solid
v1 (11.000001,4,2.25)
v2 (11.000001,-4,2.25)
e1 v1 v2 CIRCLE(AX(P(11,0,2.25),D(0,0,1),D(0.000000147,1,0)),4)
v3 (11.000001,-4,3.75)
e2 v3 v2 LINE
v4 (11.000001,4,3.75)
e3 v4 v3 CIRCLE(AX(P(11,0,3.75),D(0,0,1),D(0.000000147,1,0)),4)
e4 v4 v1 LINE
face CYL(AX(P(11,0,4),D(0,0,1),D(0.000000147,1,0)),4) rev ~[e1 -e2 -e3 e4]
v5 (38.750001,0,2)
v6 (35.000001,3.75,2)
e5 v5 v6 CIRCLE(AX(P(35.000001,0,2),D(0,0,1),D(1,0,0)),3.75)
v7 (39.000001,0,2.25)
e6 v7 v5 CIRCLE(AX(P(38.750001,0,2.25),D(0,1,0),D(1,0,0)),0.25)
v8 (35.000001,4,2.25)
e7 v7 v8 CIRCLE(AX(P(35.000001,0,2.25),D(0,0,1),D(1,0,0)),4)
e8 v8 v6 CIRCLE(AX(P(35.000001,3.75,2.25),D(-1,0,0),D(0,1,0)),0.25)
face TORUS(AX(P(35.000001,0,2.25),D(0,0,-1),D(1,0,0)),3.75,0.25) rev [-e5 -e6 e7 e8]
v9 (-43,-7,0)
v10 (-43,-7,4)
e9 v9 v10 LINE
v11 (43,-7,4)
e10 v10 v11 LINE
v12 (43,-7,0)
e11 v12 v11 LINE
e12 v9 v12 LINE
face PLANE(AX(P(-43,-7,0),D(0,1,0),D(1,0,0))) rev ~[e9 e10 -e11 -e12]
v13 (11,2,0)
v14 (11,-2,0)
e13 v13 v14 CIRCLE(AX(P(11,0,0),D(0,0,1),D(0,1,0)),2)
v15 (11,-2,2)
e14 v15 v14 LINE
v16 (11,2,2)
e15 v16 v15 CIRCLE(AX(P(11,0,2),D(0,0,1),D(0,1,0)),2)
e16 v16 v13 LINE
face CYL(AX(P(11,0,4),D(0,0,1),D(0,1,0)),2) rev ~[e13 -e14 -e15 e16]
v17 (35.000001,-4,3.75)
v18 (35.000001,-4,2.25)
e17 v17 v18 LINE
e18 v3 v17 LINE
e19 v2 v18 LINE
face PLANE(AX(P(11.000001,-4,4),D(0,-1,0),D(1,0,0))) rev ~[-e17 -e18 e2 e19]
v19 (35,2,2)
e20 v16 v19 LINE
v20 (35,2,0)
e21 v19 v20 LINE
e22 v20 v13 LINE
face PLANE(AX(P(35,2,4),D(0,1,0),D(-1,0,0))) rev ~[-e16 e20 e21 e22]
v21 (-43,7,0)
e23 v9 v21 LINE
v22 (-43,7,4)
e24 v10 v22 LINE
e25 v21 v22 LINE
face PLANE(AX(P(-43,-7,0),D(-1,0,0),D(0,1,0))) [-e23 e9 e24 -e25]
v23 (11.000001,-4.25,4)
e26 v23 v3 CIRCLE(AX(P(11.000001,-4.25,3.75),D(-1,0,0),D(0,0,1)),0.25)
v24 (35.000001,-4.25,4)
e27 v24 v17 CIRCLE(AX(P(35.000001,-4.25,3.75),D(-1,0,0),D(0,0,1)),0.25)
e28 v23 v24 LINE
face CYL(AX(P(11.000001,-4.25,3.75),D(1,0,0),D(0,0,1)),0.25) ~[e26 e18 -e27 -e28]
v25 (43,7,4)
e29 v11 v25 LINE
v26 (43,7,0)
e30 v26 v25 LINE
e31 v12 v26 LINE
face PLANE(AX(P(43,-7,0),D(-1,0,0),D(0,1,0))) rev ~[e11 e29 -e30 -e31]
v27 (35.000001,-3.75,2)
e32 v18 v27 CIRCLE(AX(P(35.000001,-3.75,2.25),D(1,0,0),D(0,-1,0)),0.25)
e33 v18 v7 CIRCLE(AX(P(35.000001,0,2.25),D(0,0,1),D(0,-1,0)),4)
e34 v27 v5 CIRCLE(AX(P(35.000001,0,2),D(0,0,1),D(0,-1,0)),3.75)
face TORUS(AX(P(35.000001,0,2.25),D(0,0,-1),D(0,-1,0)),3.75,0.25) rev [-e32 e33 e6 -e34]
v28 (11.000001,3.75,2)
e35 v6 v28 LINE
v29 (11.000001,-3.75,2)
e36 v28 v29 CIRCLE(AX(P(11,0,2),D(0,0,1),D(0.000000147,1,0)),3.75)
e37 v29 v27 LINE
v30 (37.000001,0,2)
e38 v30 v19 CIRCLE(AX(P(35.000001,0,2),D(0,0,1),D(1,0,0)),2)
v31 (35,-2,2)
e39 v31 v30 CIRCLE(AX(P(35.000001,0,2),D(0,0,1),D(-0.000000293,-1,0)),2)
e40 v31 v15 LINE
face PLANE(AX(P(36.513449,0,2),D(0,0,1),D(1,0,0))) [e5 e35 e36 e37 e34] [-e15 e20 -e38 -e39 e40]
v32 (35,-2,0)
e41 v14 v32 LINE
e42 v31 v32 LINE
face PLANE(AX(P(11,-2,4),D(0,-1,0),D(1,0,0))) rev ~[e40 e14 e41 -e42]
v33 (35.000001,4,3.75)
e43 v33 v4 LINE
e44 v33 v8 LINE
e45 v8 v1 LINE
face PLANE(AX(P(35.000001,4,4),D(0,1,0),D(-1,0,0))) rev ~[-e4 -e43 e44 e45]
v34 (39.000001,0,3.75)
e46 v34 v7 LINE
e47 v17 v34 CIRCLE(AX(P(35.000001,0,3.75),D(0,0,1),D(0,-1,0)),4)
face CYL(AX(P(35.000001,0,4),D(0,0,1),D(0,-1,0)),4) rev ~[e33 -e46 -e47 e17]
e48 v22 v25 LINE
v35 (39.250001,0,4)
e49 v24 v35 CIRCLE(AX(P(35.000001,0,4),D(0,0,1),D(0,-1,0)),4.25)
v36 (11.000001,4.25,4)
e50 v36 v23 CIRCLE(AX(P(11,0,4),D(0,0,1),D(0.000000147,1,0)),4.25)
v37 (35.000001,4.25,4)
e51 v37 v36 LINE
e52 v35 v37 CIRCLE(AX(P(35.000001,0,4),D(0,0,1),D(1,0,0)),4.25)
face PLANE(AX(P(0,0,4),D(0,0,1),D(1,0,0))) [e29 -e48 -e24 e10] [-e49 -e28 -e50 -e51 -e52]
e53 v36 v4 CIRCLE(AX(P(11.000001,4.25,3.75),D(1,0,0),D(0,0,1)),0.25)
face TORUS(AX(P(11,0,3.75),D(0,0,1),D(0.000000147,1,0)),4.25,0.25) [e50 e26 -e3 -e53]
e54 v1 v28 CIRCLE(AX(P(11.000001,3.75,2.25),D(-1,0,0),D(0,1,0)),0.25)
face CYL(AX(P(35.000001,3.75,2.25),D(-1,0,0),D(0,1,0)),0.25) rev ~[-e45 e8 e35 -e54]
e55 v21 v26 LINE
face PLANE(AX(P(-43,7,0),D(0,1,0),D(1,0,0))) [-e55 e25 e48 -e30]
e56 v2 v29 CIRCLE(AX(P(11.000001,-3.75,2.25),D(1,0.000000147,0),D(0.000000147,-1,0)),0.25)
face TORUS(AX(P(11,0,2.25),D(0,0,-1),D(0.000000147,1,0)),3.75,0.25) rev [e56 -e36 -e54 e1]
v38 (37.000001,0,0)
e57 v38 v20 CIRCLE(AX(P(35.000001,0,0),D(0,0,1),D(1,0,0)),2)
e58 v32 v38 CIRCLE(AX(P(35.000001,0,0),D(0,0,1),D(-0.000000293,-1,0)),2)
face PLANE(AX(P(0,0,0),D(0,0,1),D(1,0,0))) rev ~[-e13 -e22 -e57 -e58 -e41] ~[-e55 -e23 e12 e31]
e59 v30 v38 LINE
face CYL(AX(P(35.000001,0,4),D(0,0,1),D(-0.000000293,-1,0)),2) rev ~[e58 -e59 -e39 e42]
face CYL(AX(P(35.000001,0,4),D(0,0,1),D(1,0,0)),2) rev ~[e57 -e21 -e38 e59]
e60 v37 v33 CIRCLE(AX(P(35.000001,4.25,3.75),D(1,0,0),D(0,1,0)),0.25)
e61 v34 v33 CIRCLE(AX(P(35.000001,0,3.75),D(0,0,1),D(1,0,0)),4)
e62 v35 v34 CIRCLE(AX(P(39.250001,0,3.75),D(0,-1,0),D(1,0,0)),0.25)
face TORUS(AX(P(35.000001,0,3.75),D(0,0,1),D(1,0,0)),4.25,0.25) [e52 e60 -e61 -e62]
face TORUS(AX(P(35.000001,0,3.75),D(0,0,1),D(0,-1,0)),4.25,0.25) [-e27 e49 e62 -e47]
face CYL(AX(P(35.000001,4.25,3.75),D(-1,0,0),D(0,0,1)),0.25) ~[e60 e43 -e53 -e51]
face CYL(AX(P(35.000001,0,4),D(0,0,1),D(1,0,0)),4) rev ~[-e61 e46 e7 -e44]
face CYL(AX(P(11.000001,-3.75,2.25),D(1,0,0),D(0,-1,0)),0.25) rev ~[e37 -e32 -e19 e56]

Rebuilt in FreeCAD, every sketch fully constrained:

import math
import FreeCAD as App
import Part
import Sketcher
from FreeCAD import Vector
Q = App.Units.Quantity


def edges_at(feature, points):
    """Names of the edges that pass closest to the given points."""
    edges = feature.Shape.Edges
    near = lambda p: min(range(len(edges)), key=lambda i: edges[i].distToShape(Part.Vertex(*p))[0])
    return sorted({f"Edge{near(p) + 1}" for p in points})

doc = App.newDocument("Part")
body = doc.addObject("PartDesign::Body", "Body")

# Sketch on XY plane
sketch1 = body.newObject("Sketcher::SketchObject", "Sketch")
sketch1.AttachmentSupport = (doc.getObject("XY_Plane"), [""])
sketch1.MapMode = "FlatFace"
sketch1.addGeometry([
    Part.LineSegment(Vector(-43, 7, 0), Vector(-43, -7, 0)),
    Part.LineSegment(Vector(-43, -7, 0), Vector(43, -7, 0)),
    Part.LineSegment(Vector(43, -7, 0), Vector(43, 7, 0)),
    Part.LineSegment(Vector(43, 7, 0), Vector(-43, 7, 0)),
], False)
sketch1.addConstraint([
    Sketcher.Constraint("Coincident", 0, 2, 1, 1),
    Sketcher.Constraint("Coincident", 1, 2, 2, 1),
    Sketcher.Constraint("Coincident", 2, 2, 3, 1),
    Sketcher.Constraint("Coincident", 3, 2, 0, 1),
    Sketcher.Constraint("Vertical", 0),
    Sketcher.Constraint("Horizontal", 1),
    Sketcher.Constraint("Vertical", 2),
    Sketcher.Constraint("Horizontal", 3),
    Sketcher.Constraint("Symmetric", 0, 2, 2, 2, -1, 1),
    Sketcher.Constraint("DistanceX", 1, 1, 1, 2, Q("86 mm")),
    Sketcher.Constraint("DistanceY", 0, 2, 0, 1, Q("14 mm")),
])
pad1 = body.newObject("PartDesign::Pad", "Pad")
pad1.Profile = sketch1
pad1.Length = 4

# Sketch on XY plane
sketch2 = body.newObject("Sketcher::SketchObject", "Sketch001")
sketch2.AttachmentSupport = (doc.getObject("XY_Plane"), [""])
sketch2.MapMode = "FlatFace"
sketch2.AttachmentOffset = App.Placement(Vector(0, 0, 4), App.Rotation())
sketch2.addGeometry([
    Part.ArcOfCircle(Part.Circle(Vector(35, 0, 0), Vector(0, 0, 1), 2), math.radians(-90), math.radians(0)),  # 0
    Part.ArcOfCircle(Part.Circle(Vector(35, 0, 0), Vector(0, 0, 1), 2), math.radians(0), math.radians(90)),  # 1
    Part.LineSegment(Vector(35, 2, 0), Vector(11, 2, 0)),  # 2
    Part.ArcOfCircle(Part.Circle(Vector(11, 0, 0), Vector(0, 0, 1), 2), math.radians(90), math.radians(270)),  # 3
    Part.LineSegment(Vector(11, -2, 0), Vector(35, -2, 0)),  # 4
], False)
sketch2.addConstraint([
    Sketcher.Constraint("Tangent", 0, 2, 1, 1),
    Sketcher.Constraint("Tangent", 1, 2, 2, 1),
    Sketcher.Constraint("Tangent", 2, 2, 3, 1),
    Sketcher.Constraint("Tangent", 3, 2, 4, 1),
    Sketcher.Constraint("Tangent", 4, 2, 0, 1),
    Sketcher.Constraint("Horizontal", 2),
    Sketcher.Constraint("Horizontal", 4),
    Sketcher.Constraint("Equal", 0, 1),
    Sketcher.Constraint("PointOnObject", 0, 3, -1),
    Sketcher.Constraint("PointOnObject", 0, 2, -1),
    Sketcher.Constraint("Radius", 0, Q("2 mm")),
    Sketcher.Constraint("DistanceX", 2, 2, 2, 1, Q("24 mm")),
    Sketcher.Constraint("DistanceX", -1, 1, 0, 3, Q("35.000001 mm")),
])
pocket1 = body.newObject("PartDesign::Pocket", "Pocket")
pocket1.Profile = sketch2
pocket1.Length = 4

# Sketch on XY plane
sketch3 = body.newObject("Sketcher::SketchObject", "Sketch002")
sketch3.AttachmentSupport = (doc.getObject("XY_Plane"), [""])
sketch3.MapMode = "FlatFace"
sketch3.AttachmentOffset = App.Placement(Vector(0, 0, 4), App.Rotation())
sketch3.addGeometry([
    Part.ArcOfCircle(Part.Circle(Vector(35, 0, 0), Vector(0, 0, 1), 4), math.radians(-90), math.radians(0)),  # 0
    Part.ArcOfCircle(Part.Circle(Vector(35, 0, 0), Vector(0, 0, 1), 4), math.radians(0), math.radians(90)),  # 1
    Part.LineSegment(Vector(35, 4, 0), Vector(11, 4, 0)),  # 2
    Part.ArcOfCircle(Part.Circle(Vector(11, 0, 0), Vector(0, 0, 1), 4), math.radians(90), math.radians(270)),  # 3
    Part.LineSegment(Vector(11, -4, 0), Vector(35, -4, 0)),  # 4
], False)
sketch3.addConstraint([
    Sketcher.Constraint("Tangent", 0, 2, 1, 1),
    Sketcher.Constraint("Tangent", 1, 2, 2, 1),
    Sketcher.Constraint("Tangent", 2, 2, 3, 1),
    Sketcher.Constraint("Tangent", 3, 2, 4, 1),
    Sketcher.Constraint("Tangent", 4, 2, 0, 1),
    Sketcher.Constraint("Horizontal", 2),
    Sketcher.Constraint("Horizontal", 4),
    Sketcher.Constraint("Equal", 0, 1),
    Sketcher.Constraint("PointOnObject", 0, 3, -1),
    Sketcher.Constraint("PointOnObject", 0, 2, -1),
    Sketcher.Constraint("Radius", 0, Q("4 mm")),
    Sketcher.Constraint("DistanceX", 2, 2, 2, 1, Q("24 mm")),
    Sketcher.Constraint("DistanceX", -1, 1, 0, 3, Q("35.000001 mm")),
])
pocket2 = body.newObject("PartDesign::Pocket", "Pocket001")
pocket2.Profile = sketch3
pocket2.Length = 2
doc.recompute()

fillet = body.newObject("PartDesign::Fillet", "Fillet")
fillet.Base = (pocket2, edges_at(pocket2, [
    (23, 4, 2),
    (7, 0, 2),
    (23, -4, 2),
    (39, 0, 3),
    (23, -4, 4),
    (7, 0, 4),
    (23, 4, 4),
    (37.828, -2.828, 4),
]))
fillet.Radius = 0.25

doc.recompute()
